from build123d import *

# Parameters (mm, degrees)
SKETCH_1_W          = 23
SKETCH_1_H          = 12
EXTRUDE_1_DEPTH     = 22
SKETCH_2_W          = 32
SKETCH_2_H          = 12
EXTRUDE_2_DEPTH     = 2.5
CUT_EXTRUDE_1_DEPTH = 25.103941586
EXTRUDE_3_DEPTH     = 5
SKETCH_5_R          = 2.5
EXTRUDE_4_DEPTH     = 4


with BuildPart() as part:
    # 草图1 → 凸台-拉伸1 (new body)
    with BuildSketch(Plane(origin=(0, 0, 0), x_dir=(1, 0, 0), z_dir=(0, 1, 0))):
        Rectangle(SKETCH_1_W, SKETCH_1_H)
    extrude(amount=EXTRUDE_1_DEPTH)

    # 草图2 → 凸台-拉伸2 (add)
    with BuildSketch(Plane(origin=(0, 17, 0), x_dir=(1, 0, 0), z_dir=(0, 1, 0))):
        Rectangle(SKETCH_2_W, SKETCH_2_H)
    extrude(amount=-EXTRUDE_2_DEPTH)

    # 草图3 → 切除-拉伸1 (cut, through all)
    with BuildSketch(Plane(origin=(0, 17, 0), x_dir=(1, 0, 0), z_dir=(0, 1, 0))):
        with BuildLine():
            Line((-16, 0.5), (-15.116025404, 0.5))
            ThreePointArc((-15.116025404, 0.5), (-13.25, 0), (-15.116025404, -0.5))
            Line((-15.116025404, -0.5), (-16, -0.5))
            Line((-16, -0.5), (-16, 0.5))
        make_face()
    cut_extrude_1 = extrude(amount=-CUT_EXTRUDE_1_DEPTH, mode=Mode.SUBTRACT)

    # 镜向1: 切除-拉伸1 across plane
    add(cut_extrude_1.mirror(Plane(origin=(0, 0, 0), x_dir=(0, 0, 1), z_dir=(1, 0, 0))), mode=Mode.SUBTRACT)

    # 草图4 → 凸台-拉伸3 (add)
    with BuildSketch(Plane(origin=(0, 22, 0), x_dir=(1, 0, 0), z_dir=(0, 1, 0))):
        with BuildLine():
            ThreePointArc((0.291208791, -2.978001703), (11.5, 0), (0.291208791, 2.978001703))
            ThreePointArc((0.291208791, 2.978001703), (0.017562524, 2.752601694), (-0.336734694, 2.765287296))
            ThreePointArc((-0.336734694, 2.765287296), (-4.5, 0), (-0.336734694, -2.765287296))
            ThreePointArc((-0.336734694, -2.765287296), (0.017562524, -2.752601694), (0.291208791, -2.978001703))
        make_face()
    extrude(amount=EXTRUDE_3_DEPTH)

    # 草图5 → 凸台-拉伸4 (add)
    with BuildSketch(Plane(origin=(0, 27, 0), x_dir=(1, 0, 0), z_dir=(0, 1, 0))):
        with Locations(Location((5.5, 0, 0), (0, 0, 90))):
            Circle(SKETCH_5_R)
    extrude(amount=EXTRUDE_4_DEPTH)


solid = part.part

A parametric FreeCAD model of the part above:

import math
import FreeCAD as App
import Part
import Sketcher
from FreeCAD import Vector
Q = App.Units.Quantity


def add_polygon(sketch, points):
    """Adds a closed chain of lines whose ends are joined by coincident constraints."""
    first, n = sketch.GeometryCount, len(points)
    for a, b in zip(points, points[1:] + points[:1]):
        sketch.addGeometry(Part.LineSegment(App.Vector(*a, 0), App.Vector(*b, 0)), False)
    for i in range(n):
        sketch.addConstraint(Sketcher.Constraint("Coincident", first + i, 2, first + (i + 1) % n, 1))

doc = App.newDocument("Part")
body = doc.addObject("PartDesign::Body", "Body")

# Sketch on XZ plane
sketch1 = body.newObject("Sketcher::SketchObject", "Sketch")
sketch1.AttachmentSupport = (doc.getObject("XZ_Plane"), [""])
sketch1.MapMode = "FlatFace"
add_polygon(sketch1, [(-12, -6), (-12, 6), (12, 6), (12, -6)])  # lines 0-3
sketch1.addConstraint([
    Sketcher.Constraint("Vertical", 0),
    Sketcher.Constraint("Horizontal", 1),
    Sketcher.Constraint("Vertical", 2),
    Sketcher.Constraint("Horizontal", 3),
    Sketcher.Constraint("Symmetric", 0, 2, 2, 2, -1, 1),
    Sketcher.Constraint("DistanceX", 1, 1, 1, 2, Q("23 mm")),
    Sketcher.Constraint("DistanceY", 0, 1, 0, 2, Q("12 mm")),
])
pad1 = body.newObject("PartDesign::Pad", "Pad")
pad1.Profile = sketch1
pad1.Length = 22
pad1.Reversed = True

# Sketch on XZ plane
sketch2 = body.newObject("Sketcher::SketchObject", "Sketch001")
sketch2.AttachmentSupport = (doc.getObject("XZ_Plane"), [""])
sketch2.MapMode = "FlatFace"
sketch2.AttachmentOffset = App.Placement(Vector(0, 0, -17), App.Rotation())
add_polygon(sketch2, [(-16, -6), (-16, 6), (16, 6), (16, -6)])  # lines 0-3
sketch2.addConstraint([
    Sketcher.Constraint("Vertical", 0),
    Sketcher.Constraint("Horizontal", 1),
    Sketcher.Constraint("Vertical", 2),
    Sketcher.Constraint("Horizontal", 3),
    Sketcher.Constraint("Symmetric", 0, 2, 2, 2, -1, 1),
    Sketcher.Constraint("DistanceX", 1, 1, 1, 2, Q("32 mm")),
    Sketcher.Constraint("DistanceY", 0, 1, 0, 2, Q("12 mm")),
])
pad2 = body.newObject("PartDesign::Pad", "Pad001")
pad2.Profile = sketch2
pad2.Length = 2.5

# Sketch on XZ plane
sketch3 = body.newObject("Sketcher::SketchObject", "Sketch002")
sketch3.AttachmentSupport = (doc.getObject("XZ_Plane"), [""])
sketch3.MapMode = "FlatFace"
sketch3.AttachmentOffset = App.Placement(Vector(0, 0, -17), App.Rotation())
sketch3.addGeometry([
    Part.LineSegment(Vector(-15.1, -0.5, 0), Vector(-16, -0.5, 0)),
    Part.LineSegment(Vector(-16, -0.5, 0), Vector(-16, 0.5, 0)),
    Part.LineSegment(Vector(-16, 0.5, 0), Vector(-15.1, 0.5, 0)),
    Part.ArcOfCircle(Part.Circle(Vector(-14.2, 0, 0), Vector(0, 0, 1), 1), math.radians(-150), math.radians(150)),
], False)
sketch3.addConstraint([
    Sketcher.Constraint("Coincident", 0, 2, 1, 1),
    Sketcher.Constraint("Coincident", 1, 2, 2, 1),
    Sketcher.Constraint("Coincident", 2, 2, 3, 2),
    Sketcher.Constraint("Coincident", 3, 1, 0, 1),
    Sketcher.Constraint("Horizontal", 0),
    Sketcher.Constraint("Vertical", 1),
    Sketcher.Constraint("Horizontal", 2),
    Sketcher.Constraint("Symmetric", 2, 2, 3, 1, -1),
    Sketcher.Constraint("Radius", 3, Q("1 mm")),
    Sketcher.Constraint("DistanceY", 1, 1, 1, 2, Q("1 mm")),
    Sketcher.Constraint("DistanceX", 0, 2, -1, 1, Q("16 mm")),
    Sketcher.Constraint("DistanceX", 3, 3, -1, 1, Q("14.25 mm")),
])
pocket1 = body.newObject("PartDesign::Pocket", "Pocket")
pocket1.Profile = sketch3
pocket1.Type = "ThroughAll"
pocket1.Reversed = True
doc.recompute()

mirrored = body.newObject("PartDesign::Mirrored", "Mirrored")
mirrored.Originals = [pocket1]
mirrored.MirrorPlane = (doc.getObject("YZ_Plane"), [""])
body.Tip = mirrored

# Sketch on XZ plane
sketch4 = body.newObject("Sketcher::SketchObject", "Sketch003")
sketch4.AttachmentSupport = (doc.getObject("XZ_Plane"), [""])
sketch4.MapMode = "FlatFace"
sketch4.AttachmentOffset = App.Placement(Vector(0, 0, -22), App.Rotation())
sketch4.addGeometry([
    Part.ArcOfCircle(Part.Circle(Vector(5.5, 0, 0), Vector(0, 0, 1), 6), math.radians(-150), math.radians(150)),
    Part.ArcOfCircle(Part.Circle(Vector(-0.14, -3.23, 0), Vector(0, 0, 1), 0.5), math.radians(30), math.radians(113)),
    Part.ArcOfCircle(Part.Circle(Vector(-1.5, 0, 0), Vector(0, 0, 1), 3), math.radians(67), math.radians(293)),
    Part.ArcOfCircle(Part.Circle(Vector(-0.14, 3.23, 0), Vector(0, 0, 1), 0.5), math.radians(-113), math.radians(-30)),
], False)
sketch4.addConstraint([
    Sketcher.Constraint("Tangent", 0, 1, 1, 1),
    Sketcher.Constraint("Tangent", 1, 2, 2, 2),
    Sketcher.Constraint("Tangent", 2, 1, 3, 1),
    Sketcher.Constraint("Tangent", 3, 2, 0, 2),
    Sketcher.Constraint("Equal", 1, 3),
    Sketcher.Constraint("Symmetric", 1, 3, 3, 3, -1),
    Sketcher.Constraint("Radius", 0, Q("6 mm")),
    Sketcher.Constraint("Radius", 2, Q("3 mm")),
    Sketcher.Constraint("Radius", 1, Q("0.5 mm")),
    Sketcher.Constraint("DistanceX", 2, 3, 0, 3, Q("7 mm")),
    Sketcher.Constraint("DistanceX", -1, 1, 0, 3, Q("5.5 mm")),
])
pad3 = body.newObject("PartDesign::Pad", "Pad002")
pad3.Profile = sketch4
pad3.Length = 5
pad3.Reversed = True

# Sketch on XZ plane
sketch5 = body.newObject("Sketcher::SketchObject", "Sketch004")
sketch5.AttachmentSupport = (doc.getObject("XZ_Plane"), [""])
sketch5.MapMode = "FlatFace"
sketch5.AttachmentOffset = App.Placement(Vector(0, 0, -27), App.Rotation())
sketch5.addGeometry(Part.Circle(Vector(5.5, 0, 0), Vector(0, 0, 1), 2.5), False)
sketch5.addConstraint([
    Sketcher.Constraint("PointOnObject", 0, 3, -1),
    Sketcher.Constraint("Diameter", 0, Q("5 mm")),
    Sketcher.Constraint("DistanceX", -1, 1, 0, 3, Q("5.5 mm")),
])
pad4 = body.newObject("PartDesign::Pad", "Pad003")
pad4.Profile = sketch5
pad4.Length = 4
pad4.Reversed = True

doc.recompute()
